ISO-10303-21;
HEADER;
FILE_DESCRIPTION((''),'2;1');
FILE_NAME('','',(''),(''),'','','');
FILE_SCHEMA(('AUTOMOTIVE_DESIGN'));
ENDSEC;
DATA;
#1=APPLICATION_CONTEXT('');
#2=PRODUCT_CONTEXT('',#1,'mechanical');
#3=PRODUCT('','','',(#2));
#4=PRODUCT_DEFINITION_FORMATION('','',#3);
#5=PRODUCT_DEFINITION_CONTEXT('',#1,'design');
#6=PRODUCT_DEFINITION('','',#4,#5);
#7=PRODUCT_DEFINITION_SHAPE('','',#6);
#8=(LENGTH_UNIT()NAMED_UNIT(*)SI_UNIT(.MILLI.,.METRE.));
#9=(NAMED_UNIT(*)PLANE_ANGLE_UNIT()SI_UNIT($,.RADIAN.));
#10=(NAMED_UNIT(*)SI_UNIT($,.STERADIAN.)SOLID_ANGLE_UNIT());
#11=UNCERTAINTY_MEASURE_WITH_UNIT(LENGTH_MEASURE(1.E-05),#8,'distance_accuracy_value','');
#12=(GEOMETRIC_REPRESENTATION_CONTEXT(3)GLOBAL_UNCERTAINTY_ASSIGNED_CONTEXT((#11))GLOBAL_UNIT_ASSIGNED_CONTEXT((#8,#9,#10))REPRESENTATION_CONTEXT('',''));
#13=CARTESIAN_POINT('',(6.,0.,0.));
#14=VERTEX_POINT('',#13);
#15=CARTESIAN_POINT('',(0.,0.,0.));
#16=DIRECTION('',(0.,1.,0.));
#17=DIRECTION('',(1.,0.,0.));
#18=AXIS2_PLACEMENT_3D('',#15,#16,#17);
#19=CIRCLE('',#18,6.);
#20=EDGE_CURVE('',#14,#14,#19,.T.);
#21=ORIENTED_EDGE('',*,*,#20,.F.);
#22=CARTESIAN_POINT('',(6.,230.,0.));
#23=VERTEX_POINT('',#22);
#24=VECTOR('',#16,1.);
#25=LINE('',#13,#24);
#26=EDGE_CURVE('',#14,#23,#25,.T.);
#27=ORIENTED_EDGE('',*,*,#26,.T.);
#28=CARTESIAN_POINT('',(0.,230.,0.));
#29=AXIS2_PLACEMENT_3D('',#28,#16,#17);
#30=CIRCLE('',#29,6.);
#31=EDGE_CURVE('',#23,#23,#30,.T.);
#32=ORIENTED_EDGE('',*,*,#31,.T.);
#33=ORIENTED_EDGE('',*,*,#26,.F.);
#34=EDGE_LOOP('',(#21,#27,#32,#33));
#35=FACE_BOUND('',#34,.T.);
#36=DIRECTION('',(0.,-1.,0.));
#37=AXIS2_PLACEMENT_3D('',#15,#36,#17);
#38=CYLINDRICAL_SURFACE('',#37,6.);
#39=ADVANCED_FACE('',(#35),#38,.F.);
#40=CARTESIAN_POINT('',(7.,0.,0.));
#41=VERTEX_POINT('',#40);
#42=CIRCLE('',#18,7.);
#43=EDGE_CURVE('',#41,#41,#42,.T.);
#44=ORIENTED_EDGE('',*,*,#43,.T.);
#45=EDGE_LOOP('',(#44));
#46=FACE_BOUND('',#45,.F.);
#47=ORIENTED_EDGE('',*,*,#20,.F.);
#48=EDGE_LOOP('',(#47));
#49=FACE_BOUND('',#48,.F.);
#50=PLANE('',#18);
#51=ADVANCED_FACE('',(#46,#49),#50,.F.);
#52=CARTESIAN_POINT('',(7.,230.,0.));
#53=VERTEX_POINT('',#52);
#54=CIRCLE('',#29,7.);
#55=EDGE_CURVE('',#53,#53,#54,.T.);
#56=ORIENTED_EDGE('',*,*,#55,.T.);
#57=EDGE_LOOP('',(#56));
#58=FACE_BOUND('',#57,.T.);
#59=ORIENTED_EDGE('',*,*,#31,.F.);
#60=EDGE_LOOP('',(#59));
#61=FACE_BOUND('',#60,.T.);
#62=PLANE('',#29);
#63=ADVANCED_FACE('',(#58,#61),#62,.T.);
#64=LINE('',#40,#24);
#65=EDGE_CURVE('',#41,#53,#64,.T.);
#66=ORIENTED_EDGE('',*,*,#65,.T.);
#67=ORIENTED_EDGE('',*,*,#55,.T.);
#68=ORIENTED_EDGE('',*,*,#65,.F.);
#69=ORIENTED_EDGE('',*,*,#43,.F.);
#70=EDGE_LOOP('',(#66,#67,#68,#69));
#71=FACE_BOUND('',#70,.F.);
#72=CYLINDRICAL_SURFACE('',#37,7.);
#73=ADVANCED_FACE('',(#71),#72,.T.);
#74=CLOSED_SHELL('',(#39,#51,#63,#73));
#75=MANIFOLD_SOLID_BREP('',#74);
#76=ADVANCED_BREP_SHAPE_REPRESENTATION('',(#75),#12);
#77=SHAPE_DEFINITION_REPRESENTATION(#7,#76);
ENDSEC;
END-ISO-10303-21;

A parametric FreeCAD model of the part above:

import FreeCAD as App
import Part
import Sketcher

V = App.Vector

doc = App.newDocument("Part")
params = doc.addObject("Spreadsheet::Sheet", "Params")
for row, (alias, value) in enumerate([
    ("sketch1_diameter", "14 mm"),
    ("sketch1_diameter2", "12 mm"),
    ("pad1_length", "230 mm"),
], start=1):
    params.set(f"A{row}", alias)
    params.set(f"B{row}", "=" + value)
    params.setAlias(f"B{row}", alias)

body = doc.addObject("PartDesign::Body", "Body")

# Sketch on XZ plane
sketch1 = body.newObject("Sketcher::SketchObject", "Sketch")
sketch1.AttachmentSupport = (doc.getObject("XZ_Plane"), [""])
sketch1.MapMode = "FlatFace"
sketch1.addGeometry([
    Part.Circle(V(0, 0, 0), V(0, 0, 1), 7),
    Part.Circle(V(0, 0, 0), V(0, 0, 1), 6),
], False)
sketch1.addConstraint([
    Sketcher.Constraint("Coincident", 0, 3, -1, 1),
    Sketcher.Constraint("Coincident", 1, 3, -1, 1),
    Sketcher.Constraint("Diameter", 0, 14.0),
    Sketcher.Constraint("Diameter", 1, 12.0),
])
sketch1.setExpression("Constraints[2]", "Params.sketch1_diameter")
sketch1.setExpression("Constraints[3]", "Params.sketch1_diameter2")
pad1 = body.newObject("PartDesign::Pad", "Pad")
pad1.Profile = sketch1
pad1.setExpression("Length", "Params.pad1_length")
pad1.Reversed = True

doc.recompute()
